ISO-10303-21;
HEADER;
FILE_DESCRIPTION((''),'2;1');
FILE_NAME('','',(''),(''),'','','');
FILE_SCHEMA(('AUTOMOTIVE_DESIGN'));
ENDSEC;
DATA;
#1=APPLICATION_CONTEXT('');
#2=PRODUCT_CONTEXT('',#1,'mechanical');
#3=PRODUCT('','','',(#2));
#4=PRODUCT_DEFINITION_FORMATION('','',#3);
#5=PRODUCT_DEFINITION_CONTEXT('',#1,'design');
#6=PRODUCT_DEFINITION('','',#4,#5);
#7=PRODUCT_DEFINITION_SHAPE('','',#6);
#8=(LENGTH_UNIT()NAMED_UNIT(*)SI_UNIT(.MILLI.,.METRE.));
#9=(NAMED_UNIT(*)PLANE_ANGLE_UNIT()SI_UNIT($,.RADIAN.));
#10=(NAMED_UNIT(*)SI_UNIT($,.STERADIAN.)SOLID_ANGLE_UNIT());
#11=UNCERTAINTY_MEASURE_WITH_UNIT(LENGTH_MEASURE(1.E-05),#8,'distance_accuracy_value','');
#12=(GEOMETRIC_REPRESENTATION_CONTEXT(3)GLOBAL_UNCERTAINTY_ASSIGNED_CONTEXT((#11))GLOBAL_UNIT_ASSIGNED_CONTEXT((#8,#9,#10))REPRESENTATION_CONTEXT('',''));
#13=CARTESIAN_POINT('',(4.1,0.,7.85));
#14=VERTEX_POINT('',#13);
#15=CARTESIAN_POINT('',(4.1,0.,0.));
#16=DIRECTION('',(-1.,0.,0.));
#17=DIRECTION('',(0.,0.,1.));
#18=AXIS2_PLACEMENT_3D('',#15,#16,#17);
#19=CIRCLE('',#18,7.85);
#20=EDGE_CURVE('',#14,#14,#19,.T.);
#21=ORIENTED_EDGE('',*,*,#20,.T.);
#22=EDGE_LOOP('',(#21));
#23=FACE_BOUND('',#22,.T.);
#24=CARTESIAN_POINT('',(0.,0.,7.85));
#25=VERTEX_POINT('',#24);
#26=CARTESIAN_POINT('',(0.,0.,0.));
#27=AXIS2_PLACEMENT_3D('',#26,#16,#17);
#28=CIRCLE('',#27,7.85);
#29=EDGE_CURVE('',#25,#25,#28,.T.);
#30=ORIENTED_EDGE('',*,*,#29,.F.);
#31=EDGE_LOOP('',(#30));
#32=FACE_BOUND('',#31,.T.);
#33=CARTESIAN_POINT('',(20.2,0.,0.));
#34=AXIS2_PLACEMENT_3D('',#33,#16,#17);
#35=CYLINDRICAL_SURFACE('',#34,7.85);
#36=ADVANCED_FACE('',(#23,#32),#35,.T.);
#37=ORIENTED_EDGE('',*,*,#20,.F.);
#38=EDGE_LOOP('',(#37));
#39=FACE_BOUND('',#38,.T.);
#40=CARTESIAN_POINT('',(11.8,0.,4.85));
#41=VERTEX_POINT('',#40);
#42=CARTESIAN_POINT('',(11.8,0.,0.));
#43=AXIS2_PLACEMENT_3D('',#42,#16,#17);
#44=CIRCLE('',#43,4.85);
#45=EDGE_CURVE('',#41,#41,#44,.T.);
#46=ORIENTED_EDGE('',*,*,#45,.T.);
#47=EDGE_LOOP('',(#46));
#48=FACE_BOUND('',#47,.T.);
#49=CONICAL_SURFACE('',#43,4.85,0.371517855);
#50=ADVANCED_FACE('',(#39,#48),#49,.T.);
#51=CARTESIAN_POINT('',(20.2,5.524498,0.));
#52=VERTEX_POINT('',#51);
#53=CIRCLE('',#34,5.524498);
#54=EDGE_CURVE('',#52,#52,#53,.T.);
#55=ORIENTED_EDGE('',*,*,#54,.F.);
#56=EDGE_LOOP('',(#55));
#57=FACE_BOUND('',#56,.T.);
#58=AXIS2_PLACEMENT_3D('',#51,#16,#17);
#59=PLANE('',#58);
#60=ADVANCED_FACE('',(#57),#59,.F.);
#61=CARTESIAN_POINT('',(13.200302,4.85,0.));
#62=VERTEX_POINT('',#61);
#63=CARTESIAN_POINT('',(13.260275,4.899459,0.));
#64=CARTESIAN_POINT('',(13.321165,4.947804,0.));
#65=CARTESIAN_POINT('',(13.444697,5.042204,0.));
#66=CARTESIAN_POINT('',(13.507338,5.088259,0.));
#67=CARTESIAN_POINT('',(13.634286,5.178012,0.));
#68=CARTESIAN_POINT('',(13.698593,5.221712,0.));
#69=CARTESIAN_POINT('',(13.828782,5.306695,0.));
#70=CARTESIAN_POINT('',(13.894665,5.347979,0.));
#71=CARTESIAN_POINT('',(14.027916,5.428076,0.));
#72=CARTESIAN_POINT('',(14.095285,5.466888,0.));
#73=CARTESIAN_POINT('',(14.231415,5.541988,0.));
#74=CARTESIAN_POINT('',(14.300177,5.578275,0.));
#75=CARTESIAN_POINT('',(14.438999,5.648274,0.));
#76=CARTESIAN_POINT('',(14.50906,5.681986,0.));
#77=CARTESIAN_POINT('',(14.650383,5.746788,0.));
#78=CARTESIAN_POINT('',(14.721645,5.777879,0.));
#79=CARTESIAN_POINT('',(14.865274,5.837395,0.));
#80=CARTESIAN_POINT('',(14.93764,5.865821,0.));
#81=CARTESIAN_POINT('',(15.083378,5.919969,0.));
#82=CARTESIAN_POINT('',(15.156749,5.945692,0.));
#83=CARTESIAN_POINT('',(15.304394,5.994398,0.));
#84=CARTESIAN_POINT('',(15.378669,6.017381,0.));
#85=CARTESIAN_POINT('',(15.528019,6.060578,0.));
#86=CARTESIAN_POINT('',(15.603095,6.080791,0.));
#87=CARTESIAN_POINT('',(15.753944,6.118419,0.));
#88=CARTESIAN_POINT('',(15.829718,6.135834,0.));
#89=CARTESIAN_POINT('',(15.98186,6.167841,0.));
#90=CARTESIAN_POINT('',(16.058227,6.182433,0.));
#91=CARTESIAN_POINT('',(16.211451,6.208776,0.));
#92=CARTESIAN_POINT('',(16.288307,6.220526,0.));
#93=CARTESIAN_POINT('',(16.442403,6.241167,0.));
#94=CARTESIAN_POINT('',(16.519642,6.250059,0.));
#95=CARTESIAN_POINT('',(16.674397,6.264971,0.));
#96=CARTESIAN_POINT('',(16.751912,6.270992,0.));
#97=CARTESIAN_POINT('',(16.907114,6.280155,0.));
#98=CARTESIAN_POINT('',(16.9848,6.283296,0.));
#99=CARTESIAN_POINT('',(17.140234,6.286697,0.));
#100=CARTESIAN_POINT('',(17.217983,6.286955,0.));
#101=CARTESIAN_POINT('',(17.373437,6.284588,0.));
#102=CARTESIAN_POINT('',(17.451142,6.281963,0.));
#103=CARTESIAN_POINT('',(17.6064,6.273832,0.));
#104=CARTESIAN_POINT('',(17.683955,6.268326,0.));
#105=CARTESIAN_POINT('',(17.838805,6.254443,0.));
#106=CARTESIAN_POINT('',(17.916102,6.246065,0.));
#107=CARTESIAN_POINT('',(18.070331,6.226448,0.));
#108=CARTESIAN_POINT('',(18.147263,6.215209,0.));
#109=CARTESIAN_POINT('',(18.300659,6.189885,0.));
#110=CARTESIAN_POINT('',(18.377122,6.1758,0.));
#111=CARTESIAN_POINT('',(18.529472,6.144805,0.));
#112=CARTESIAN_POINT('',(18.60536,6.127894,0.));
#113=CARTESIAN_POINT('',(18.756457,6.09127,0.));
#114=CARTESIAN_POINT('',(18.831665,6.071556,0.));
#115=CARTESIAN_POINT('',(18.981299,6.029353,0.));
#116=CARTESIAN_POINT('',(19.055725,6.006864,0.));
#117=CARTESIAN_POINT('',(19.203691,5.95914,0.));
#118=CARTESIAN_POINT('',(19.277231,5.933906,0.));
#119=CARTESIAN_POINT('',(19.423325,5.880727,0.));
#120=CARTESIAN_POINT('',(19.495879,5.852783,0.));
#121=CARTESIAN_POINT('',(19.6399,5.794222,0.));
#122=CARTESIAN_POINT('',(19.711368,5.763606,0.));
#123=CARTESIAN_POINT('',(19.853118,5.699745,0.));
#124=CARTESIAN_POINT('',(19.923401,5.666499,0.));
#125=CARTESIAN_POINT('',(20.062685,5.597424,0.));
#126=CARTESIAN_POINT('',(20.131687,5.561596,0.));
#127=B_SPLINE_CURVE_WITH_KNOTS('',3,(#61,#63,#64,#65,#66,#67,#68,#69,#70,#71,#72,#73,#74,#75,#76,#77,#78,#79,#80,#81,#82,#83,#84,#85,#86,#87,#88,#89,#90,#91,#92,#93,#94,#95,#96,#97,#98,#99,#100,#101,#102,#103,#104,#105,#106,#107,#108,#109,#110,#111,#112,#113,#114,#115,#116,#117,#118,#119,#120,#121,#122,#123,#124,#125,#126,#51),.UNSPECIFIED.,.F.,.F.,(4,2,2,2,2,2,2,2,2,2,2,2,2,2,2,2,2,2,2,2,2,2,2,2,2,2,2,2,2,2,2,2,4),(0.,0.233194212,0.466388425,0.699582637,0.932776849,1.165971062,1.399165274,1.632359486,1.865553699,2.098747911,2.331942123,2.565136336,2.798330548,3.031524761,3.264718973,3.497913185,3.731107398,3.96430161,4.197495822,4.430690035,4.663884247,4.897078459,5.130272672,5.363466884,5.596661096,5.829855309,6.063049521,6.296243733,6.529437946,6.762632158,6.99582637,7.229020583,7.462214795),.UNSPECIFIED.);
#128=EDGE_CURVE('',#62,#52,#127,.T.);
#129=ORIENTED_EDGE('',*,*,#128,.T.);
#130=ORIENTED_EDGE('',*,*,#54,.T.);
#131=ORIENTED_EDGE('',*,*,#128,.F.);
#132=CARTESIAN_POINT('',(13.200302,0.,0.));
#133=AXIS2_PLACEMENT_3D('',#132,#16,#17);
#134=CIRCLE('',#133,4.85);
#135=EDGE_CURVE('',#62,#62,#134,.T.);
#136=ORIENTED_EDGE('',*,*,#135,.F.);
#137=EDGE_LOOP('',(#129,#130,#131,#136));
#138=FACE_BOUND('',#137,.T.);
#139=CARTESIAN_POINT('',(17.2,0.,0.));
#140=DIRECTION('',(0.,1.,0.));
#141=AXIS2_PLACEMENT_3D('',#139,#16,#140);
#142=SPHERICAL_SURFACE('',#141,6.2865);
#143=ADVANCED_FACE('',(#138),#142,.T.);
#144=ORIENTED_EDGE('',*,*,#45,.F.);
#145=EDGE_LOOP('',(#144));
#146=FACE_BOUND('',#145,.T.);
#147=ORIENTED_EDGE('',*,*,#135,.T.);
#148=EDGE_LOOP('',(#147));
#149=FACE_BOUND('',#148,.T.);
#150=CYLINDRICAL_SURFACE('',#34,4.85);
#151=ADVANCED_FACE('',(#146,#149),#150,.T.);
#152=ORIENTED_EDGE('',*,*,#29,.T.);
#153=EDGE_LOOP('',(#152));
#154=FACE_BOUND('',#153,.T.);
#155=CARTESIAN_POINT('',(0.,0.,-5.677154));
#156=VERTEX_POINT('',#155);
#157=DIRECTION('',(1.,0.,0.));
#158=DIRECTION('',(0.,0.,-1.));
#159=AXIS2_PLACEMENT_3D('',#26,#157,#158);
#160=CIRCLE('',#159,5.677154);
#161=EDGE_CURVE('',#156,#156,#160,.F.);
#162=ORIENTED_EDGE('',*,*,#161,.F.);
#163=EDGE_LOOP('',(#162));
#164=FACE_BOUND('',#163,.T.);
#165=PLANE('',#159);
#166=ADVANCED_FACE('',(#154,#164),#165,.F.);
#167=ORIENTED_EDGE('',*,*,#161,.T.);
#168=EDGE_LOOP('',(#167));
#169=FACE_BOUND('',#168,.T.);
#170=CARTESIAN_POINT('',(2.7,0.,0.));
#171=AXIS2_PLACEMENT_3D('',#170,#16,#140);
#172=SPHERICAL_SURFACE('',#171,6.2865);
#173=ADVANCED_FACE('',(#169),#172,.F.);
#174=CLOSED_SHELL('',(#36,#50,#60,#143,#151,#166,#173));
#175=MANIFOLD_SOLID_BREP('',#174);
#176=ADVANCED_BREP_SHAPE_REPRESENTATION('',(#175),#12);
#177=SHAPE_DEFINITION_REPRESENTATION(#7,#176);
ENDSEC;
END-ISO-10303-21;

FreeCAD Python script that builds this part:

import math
import FreeCAD as App
import Part
import Sketcher

doc = App.newDocument("Part")
body = doc.addObject("PartDesign::Body", "Body")

sketch1 = body.newObject("Sketcher::SketchObject", "Sketch")
sketch1.AttachmentSupport = (doc.getObject("XY_Plane"), [""])
sketch1.MapMode = "FlatFace"
sketch1.addGeometry(Part.LineSegment(App.Vector(0, 7.8, 0), App.Vector(0, 0, 0)), False)
sketch1.addGeometry(Part.LineSegment(App.Vector(0, 0, 0), App.Vector(20.2, 0, 0)), False)
sketch1.addGeometry(Part.LineSegment(App.Vector(20.2, 0, 0), App.Vector(20.2, 5.5, 0)), False)
sketch1.addGeometry(Part.ArcOfCircle(Part.Circle(App.Vector(17.2, 0, 0), App.Vector(0, 0, 1), 6.3), math.radians(61), math.radians(130)), False)
sketch1.addGeometry(Part.LineSegment(App.Vector(13.2, 4.8, 0), App.Vector(11.8, 4.8, 0)), False)
sketch1.addGeometry(Part.LineSegment(App.Vector(11.8, 4.8, 0), App.Vector(4.1, 7.8, 0)), False)
sketch1.addGeometry(Part.LineSegment(App.Vector(4.1, 7.8, 0), App.Vector(0, 7.8, 0)), False)
sketch1.addConstraint(Sketcher.Constraint("Coincident", 0, 2, 1, 1))
sketch1.addConstraint(Sketcher.Constraint("Coincident", 1, 2, 2, 1))
sketch1.addConstraint(Sketcher.Constraint("Coincident", 2, 2, 3, 1))
sketch1.addConstraint(Sketcher.Constraint("Coincident", 3, 2, 4, 1))
sketch1.addConstraint(Sketcher.Constraint("Coincident", 4, 2, 5, 1))
sketch1.addConstraint(Sketcher.Constraint("Coincident", 5, 2, 6, 1))
sketch1.addConstraint(Sketcher.Constraint("Coincident", 6, 2, 0, 1))
sketch1.addConstraint(Sketcher.Constraint("Vertical", 0))
sketch1.addConstraint(Sketcher.Constraint("Horizontal", 1))
sketch1.addConstraint(Sketcher.Constraint("Vertical", 2))
sketch1.addConstraint(Sketcher.Constraint("Horizontal", 4))
sketch1.addConstraint(Sketcher.Constraint("Horizontal", 6))
sketch1.addConstraint(Sketcher.Constraint("Coincident", 0, 2, -1, 1))
sketch1.addConstraint(Sketcher.Constraint("PointOnObject", 3, 3, -1))
sketch1.addConstraint(Sketcher.Constraint("DistanceX", 1, 1, 1, 2, 20.2))
sketch1.addConstraint(Sketcher.Constraint("DistanceX", 6, 2, 6, 1, 4.1))
sketch1.addConstraint(Sketcher.Constraint("DistanceX", 3, 3, 1, 2, 3.0))
sketch1.addConstraint(Sketcher.Constraint("DistanceY", 4, 2, 5, 2, 3.0))
sketch1.addConstraint(Sketcher.Constraint("DistanceY", 0, 2, 0, 1, 7.85))
sketch1.addConstraint(Sketcher.Constraint("DistanceX", -1, 1, 4, 2, 11.8))
sketch1.addConstraint(Sketcher.Constraint("Radius", 3, 6.2865))
revolution = body.newObject("PartDesign::Revolution", "Revolution")
revolution.Profile = sketch1
revolution.ReferenceAxis = (sketch1, ["H_Axis"])
revolution.Angle = 360

sketch2 = body.newObject("Sketcher::SketchObject", "Sketch001")
sketch2.AttachmentSupport = (doc.getObject("XY_Plane"), [""])
sketch2.MapMode = "FlatFace"
sketch2.addGeometry(Part.LineSegment(App.Vector(-4, 0, 0), App.Vector(9, 0, 0)), False)
sketch2.addGeometry(Part.ArcOfCircle(Part.Circle(App.Vector(3, 0, 0), App.Vector(0, 0, 1), 6), math.radians(0), math.radians(180)), False)
sketch2.addConstraint(Sketcher.Constraint("Coincident", 0, 1, 1, 2))
sketch2.addConstraint(Sketcher.Constraint("Coincident", 1, 1, 0, 2))
sketch2.addConstraint(Sketcher.Constraint("Horizontal", 0))
sketch2.addConstraint(Sketcher.Constraint("PointOnObject", 1, 3, -1))
sketch2.addConstraint(Sketcher.Constraint("PointOnObject", 0, 1, -1))
sketch2.addConstraint(Sketcher.Constraint("DistanceX", -1, 1, 1, 3, 2.7))
sketch2.addConstraint(Sketcher.Constraint("Radius", 1, 6.2865))
groove = body.newObject("PartDesign::Groove", "Groove")
groove.Profile = sketch2
groove.ReferenceAxis = (sketch2, ["H_Axis"])
groove.Angle = 360

doc.recompute()
